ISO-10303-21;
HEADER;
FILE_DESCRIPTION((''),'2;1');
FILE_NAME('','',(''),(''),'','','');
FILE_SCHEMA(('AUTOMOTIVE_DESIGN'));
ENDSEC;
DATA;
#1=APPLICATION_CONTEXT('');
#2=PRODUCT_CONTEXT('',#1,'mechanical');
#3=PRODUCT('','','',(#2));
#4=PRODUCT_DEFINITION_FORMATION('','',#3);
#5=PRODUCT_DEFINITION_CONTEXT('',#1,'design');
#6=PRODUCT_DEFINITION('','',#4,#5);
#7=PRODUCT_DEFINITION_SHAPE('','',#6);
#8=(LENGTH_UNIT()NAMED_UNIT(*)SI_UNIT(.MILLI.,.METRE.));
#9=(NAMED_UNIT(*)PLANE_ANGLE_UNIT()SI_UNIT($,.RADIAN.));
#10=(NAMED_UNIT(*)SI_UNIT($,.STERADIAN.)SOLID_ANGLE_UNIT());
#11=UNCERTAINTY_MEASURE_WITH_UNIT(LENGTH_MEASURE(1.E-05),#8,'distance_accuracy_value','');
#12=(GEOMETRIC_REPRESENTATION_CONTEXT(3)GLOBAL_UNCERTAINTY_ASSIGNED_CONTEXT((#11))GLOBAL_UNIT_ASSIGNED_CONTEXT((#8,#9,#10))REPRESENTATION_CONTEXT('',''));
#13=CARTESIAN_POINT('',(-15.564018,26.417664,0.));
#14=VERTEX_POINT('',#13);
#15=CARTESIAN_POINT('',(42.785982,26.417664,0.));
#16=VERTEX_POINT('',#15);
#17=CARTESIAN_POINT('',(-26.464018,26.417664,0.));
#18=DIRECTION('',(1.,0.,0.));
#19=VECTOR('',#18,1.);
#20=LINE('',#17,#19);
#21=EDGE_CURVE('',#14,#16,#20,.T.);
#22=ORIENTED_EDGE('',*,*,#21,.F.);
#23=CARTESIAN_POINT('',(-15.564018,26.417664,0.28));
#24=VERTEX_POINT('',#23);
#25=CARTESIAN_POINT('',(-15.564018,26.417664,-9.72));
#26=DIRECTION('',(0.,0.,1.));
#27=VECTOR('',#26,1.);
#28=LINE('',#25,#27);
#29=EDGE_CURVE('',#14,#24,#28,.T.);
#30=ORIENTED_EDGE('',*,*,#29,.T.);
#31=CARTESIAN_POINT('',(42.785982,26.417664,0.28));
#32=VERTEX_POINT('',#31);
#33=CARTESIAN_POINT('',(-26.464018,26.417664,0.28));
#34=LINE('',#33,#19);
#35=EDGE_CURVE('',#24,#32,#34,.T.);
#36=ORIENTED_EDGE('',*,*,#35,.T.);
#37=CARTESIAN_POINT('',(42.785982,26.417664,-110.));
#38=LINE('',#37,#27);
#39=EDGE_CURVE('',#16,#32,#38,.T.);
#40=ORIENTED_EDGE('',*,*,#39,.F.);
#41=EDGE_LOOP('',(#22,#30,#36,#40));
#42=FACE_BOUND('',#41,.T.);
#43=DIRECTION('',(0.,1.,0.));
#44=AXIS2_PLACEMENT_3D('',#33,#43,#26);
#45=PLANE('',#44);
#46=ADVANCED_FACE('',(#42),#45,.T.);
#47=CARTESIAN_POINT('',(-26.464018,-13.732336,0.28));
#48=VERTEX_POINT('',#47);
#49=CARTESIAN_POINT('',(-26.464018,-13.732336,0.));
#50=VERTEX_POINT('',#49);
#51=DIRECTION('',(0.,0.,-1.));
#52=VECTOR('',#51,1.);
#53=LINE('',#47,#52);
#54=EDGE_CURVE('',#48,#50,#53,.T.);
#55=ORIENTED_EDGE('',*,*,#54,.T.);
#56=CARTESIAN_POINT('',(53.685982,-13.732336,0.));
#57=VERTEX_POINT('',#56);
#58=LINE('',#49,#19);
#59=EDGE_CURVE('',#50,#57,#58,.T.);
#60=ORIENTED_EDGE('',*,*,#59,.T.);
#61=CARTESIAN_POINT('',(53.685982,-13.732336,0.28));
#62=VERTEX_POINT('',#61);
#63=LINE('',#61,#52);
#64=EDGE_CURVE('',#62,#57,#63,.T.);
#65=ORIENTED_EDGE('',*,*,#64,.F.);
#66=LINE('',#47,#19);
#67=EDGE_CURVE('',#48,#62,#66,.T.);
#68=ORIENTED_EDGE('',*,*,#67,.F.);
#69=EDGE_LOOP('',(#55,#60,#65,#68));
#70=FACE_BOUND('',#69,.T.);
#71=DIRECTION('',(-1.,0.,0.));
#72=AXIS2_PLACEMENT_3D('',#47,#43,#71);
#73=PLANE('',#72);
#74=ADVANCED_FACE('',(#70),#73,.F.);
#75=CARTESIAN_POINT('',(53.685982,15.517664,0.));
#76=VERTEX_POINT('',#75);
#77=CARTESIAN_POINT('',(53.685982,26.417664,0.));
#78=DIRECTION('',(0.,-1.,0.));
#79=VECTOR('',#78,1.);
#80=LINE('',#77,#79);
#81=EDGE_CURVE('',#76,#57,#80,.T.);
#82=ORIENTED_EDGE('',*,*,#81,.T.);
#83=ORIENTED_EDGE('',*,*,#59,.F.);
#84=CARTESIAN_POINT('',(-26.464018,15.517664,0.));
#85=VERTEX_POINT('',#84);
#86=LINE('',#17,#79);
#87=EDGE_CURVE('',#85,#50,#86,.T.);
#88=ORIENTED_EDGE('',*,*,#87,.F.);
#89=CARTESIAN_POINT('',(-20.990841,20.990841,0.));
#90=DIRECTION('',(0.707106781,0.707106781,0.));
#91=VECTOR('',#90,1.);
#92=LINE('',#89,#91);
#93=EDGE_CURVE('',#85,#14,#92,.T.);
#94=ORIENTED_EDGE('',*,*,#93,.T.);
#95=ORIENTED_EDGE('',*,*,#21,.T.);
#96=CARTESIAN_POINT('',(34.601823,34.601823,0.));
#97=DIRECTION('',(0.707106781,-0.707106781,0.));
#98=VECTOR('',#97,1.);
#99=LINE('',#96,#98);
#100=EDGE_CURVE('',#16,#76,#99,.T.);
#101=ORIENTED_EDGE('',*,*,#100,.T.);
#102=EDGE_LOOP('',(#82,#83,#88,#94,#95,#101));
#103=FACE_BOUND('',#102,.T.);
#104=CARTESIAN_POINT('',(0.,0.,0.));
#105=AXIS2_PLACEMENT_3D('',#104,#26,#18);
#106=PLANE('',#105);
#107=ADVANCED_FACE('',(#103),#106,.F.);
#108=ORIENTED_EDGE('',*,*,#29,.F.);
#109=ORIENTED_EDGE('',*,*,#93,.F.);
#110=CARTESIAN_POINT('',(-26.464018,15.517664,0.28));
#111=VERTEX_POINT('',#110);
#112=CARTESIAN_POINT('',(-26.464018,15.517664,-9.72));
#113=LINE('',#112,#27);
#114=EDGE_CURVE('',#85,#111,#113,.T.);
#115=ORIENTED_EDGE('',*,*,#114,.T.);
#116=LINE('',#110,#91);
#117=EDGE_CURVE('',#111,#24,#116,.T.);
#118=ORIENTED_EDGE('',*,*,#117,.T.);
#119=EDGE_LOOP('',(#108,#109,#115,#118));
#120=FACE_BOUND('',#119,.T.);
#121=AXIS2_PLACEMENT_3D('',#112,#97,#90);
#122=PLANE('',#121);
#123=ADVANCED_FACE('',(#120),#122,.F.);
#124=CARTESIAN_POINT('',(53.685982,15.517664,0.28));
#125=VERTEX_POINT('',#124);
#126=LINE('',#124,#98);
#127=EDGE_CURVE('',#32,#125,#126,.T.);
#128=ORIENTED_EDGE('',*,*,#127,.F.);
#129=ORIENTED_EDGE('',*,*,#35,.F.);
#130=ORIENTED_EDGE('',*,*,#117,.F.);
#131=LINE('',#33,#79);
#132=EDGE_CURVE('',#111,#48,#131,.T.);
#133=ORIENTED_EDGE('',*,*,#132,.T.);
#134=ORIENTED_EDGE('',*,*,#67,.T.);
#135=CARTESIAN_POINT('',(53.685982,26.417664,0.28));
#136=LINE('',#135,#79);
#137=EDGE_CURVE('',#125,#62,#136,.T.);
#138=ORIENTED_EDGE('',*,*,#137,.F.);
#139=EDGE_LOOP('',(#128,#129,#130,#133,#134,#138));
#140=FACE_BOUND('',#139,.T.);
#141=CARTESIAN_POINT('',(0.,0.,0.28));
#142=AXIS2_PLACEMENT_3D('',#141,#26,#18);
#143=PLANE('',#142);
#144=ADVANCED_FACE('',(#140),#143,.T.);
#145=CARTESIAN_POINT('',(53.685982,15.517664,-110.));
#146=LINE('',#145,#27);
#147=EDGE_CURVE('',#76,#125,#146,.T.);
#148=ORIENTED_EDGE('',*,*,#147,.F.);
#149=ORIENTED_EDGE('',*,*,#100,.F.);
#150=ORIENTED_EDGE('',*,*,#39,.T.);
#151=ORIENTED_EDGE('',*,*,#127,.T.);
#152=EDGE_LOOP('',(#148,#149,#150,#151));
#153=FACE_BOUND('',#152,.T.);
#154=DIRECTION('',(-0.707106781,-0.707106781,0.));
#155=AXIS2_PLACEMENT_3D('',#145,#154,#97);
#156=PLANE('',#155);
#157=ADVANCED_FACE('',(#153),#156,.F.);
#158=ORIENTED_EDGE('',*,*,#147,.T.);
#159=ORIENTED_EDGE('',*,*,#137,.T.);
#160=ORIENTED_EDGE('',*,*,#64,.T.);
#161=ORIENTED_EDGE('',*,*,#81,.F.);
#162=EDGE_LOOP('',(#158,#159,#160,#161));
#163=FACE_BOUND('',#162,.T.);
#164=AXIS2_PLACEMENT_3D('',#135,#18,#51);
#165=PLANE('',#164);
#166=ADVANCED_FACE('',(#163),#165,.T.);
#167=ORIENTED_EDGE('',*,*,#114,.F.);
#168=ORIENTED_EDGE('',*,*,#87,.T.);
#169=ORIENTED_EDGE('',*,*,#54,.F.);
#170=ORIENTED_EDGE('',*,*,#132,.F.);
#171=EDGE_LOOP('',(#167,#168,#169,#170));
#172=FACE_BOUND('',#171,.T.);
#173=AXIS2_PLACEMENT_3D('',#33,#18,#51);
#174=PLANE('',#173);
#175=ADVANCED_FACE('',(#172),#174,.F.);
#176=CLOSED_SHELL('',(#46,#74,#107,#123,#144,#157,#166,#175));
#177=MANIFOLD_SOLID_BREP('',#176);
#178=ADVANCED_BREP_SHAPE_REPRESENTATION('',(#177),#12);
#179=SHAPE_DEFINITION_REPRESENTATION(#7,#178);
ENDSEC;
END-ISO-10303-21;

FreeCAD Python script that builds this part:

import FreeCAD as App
import Part
import Sketcher

doc = App.newDocument("Part")
body = doc.addObject("PartDesign::Body", "Body")

# Sketch on XY plane
sketch1 = body.newObject("Sketcher::SketchObject", "Sketch")
sketch1.AttachmentSupport = (doc.getObject("XY_Plane"), [""])
sketch1.MapMode = "FlatFace"
sketch1.addGeometry(Part.LineSegment(App.Vector(-26, 26, 0), App.Vector(-26, -14, 0)), False)
sketch1.addGeometry(Part.LineSegment(App.Vector(-26, -14, 0), App.Vector(54, -14, 0)), False)
sketch1.addGeometry(Part.LineSegment(App.Vector(54, -14, 0), App.Vector(54, 26, 0)), False)
sketch1.addGeometry(Part.LineSegment(App.Vector(54, 26, 0), App.Vector(-26, 26, 0)), False)
sketch1.addConstraint(Sketcher.Constraint("Coincident", 0, 2, 1, 1))
sketch1.addConstraint(Sketcher.Constraint("Coincident", 1, 2, 2, 1))
sketch1.addConstraint(Sketcher.Constraint("Coincident", 2, 2, 3, 1))
sketch1.addConstraint(Sketcher.Constraint("Coincident", 3, 2, 0, 1))
sketch1.addConstraint(Sketcher.Constraint("Vertical", 0))
sketch1.addConstraint(Sketcher.Constraint("Horizontal", 1))
sketch1.addConstraint(Sketcher.Constraint("Vertical", 2))
sketch1.addConstraint(Sketcher.Constraint("Horizontal", 3))
sketch1.addConstraint(Sketcher.Constraint("DistanceX", 1, 1, 1, 2, 80.15))
sketch1.addConstraint(Sketcher.Constraint("DistanceY", 0, 2, 0, 1, 40.15))
sketch1.addConstraint(Sketcher.Constraint("DistanceX", 0, 2, -1, 1, 26.464018))
sketch1.addConstraint(Sketcher.Constraint("DistanceY", 0, 2, -1, 1, 13.732336))
pad1 = body.newObject("PartDesign::Pad", "Pad")
pad1.Profile = sketch1
pad1.Length = 0.28

# Sketch on XY plane
sketch2 = body.newObject("Sketcher::SketchObject", "Sketch001")
sketch2.AttachmentSupport = (doc.getObject("XY_Plane"), [""])
sketch2.MapMode = "FlatFace"
sketch2.AttachmentOffset = App.Placement(App.Vector(0, 0, 0.28), App.Rotation())
sketch2.addGeometry(Part.LineSegment(App.Vector(54, 16, 0), App.Vector(54, 26, 0)), False)
sketch2.addGeometry(Part.LineSegment(App.Vector(54, 26, 0), App.Vector(43, 26, 0)), False)
sketch2.addGeometry(Part.LineSegment(App.Vector(43, 26, 0), App.Vector(54, 16, 0)), False)
sketch2.addConstraint(Sketcher.Constraint("Coincident", 0, 2, 1, 1))
sketch2.addConstraint(Sketcher.Constraint("Coincident", 1, 2, 2, 1))
sketch2.addConstraint(Sketcher.Constraint("Coincident", 2, 2, 0, 1))
sketch2.addConstraint(Sketcher.Constraint("Vertical", 0))
sketch2.addConstraint(Sketcher.Constraint("Horizontal", 1))
sketch2.addConstraint(Sketcher.Constraint("Equal", 1, 0))
sketch2.addConstraint(Sketcher.Constraint("DistanceX", 1, 2, 1, 1, 10.9))
sketch2.addConstraint(Sketcher.Constraint("DistanceX", -1, 1, 0, 2, 53.685982))
sketch2.addConstraint(Sketcher.Constraint("DistanceY", -1, 1, 0, 2, 26.417664))
pocket1 = body.newObject("PartDesign::Pocket", "Pocket")
pocket1.Profile = sketch2
pocket1.Length = 110.28

# Sketch on XY plane
sketch3 = body.newObject("Sketcher::SketchObject", "Sketch002")
sketch3.AttachmentSupport = (doc.getObject("XY_Plane"), [""])
sketch3.MapMode = "FlatFace"
sketch3.AttachmentOffset = App.Placement(App.Vector(0, 0, 0.28), App.Rotation())
sketch3.addGeometry(Part.LineSegment(App.Vector(-26, 26, 0), App.Vector(-26, 16, 0)), False)
sketch3.addGeometry(Part.LineSegment(App.Vector(-26, 16, 0), App.Vector(-16, 26, 0)), False)
sketch3.addGeometry(Part.LineSegment(App.Vector(-16, 26, 0), App.Vector(-26, 26, 0)), False)
sketch3.addConstraint(Sketcher.Constraint("Coincident", 0, 2, 1, 1))
sketch3.addConstraint(Sketcher.Constraint("Coincident", 1, 2, 2, 1))
sketch3.addConstraint(Sketcher.Constraint("Coincident", 2, 2, 0, 1))
sketch3.addConstraint(Sketcher.Constraint("Vertical", 0))
sketch3.addConstraint(Sketcher.Constraint("Horizontal", 2))
sketch3.addConstraint(Sketcher.Constraint("Equal", 2, 0))
sketch3.addConstraint(Sketcher.Constraint("DistanceX", 2, 2, 2, 1, 10.9))
sketch3.addConstraint(Sketcher.Constraint("DistanceX", 0, 2, -1, 1, 26.464018))
sketch3.addConstraint(Sketcher.Constraint("DistanceY", -1, 1, 0, 2, 15.517664))
pocket2 = body.newObject("PartDesign::Pocket", "Pocket001")
pocket2.Profile = sketch3
pocket2.Length = 10

doc.recompute()
